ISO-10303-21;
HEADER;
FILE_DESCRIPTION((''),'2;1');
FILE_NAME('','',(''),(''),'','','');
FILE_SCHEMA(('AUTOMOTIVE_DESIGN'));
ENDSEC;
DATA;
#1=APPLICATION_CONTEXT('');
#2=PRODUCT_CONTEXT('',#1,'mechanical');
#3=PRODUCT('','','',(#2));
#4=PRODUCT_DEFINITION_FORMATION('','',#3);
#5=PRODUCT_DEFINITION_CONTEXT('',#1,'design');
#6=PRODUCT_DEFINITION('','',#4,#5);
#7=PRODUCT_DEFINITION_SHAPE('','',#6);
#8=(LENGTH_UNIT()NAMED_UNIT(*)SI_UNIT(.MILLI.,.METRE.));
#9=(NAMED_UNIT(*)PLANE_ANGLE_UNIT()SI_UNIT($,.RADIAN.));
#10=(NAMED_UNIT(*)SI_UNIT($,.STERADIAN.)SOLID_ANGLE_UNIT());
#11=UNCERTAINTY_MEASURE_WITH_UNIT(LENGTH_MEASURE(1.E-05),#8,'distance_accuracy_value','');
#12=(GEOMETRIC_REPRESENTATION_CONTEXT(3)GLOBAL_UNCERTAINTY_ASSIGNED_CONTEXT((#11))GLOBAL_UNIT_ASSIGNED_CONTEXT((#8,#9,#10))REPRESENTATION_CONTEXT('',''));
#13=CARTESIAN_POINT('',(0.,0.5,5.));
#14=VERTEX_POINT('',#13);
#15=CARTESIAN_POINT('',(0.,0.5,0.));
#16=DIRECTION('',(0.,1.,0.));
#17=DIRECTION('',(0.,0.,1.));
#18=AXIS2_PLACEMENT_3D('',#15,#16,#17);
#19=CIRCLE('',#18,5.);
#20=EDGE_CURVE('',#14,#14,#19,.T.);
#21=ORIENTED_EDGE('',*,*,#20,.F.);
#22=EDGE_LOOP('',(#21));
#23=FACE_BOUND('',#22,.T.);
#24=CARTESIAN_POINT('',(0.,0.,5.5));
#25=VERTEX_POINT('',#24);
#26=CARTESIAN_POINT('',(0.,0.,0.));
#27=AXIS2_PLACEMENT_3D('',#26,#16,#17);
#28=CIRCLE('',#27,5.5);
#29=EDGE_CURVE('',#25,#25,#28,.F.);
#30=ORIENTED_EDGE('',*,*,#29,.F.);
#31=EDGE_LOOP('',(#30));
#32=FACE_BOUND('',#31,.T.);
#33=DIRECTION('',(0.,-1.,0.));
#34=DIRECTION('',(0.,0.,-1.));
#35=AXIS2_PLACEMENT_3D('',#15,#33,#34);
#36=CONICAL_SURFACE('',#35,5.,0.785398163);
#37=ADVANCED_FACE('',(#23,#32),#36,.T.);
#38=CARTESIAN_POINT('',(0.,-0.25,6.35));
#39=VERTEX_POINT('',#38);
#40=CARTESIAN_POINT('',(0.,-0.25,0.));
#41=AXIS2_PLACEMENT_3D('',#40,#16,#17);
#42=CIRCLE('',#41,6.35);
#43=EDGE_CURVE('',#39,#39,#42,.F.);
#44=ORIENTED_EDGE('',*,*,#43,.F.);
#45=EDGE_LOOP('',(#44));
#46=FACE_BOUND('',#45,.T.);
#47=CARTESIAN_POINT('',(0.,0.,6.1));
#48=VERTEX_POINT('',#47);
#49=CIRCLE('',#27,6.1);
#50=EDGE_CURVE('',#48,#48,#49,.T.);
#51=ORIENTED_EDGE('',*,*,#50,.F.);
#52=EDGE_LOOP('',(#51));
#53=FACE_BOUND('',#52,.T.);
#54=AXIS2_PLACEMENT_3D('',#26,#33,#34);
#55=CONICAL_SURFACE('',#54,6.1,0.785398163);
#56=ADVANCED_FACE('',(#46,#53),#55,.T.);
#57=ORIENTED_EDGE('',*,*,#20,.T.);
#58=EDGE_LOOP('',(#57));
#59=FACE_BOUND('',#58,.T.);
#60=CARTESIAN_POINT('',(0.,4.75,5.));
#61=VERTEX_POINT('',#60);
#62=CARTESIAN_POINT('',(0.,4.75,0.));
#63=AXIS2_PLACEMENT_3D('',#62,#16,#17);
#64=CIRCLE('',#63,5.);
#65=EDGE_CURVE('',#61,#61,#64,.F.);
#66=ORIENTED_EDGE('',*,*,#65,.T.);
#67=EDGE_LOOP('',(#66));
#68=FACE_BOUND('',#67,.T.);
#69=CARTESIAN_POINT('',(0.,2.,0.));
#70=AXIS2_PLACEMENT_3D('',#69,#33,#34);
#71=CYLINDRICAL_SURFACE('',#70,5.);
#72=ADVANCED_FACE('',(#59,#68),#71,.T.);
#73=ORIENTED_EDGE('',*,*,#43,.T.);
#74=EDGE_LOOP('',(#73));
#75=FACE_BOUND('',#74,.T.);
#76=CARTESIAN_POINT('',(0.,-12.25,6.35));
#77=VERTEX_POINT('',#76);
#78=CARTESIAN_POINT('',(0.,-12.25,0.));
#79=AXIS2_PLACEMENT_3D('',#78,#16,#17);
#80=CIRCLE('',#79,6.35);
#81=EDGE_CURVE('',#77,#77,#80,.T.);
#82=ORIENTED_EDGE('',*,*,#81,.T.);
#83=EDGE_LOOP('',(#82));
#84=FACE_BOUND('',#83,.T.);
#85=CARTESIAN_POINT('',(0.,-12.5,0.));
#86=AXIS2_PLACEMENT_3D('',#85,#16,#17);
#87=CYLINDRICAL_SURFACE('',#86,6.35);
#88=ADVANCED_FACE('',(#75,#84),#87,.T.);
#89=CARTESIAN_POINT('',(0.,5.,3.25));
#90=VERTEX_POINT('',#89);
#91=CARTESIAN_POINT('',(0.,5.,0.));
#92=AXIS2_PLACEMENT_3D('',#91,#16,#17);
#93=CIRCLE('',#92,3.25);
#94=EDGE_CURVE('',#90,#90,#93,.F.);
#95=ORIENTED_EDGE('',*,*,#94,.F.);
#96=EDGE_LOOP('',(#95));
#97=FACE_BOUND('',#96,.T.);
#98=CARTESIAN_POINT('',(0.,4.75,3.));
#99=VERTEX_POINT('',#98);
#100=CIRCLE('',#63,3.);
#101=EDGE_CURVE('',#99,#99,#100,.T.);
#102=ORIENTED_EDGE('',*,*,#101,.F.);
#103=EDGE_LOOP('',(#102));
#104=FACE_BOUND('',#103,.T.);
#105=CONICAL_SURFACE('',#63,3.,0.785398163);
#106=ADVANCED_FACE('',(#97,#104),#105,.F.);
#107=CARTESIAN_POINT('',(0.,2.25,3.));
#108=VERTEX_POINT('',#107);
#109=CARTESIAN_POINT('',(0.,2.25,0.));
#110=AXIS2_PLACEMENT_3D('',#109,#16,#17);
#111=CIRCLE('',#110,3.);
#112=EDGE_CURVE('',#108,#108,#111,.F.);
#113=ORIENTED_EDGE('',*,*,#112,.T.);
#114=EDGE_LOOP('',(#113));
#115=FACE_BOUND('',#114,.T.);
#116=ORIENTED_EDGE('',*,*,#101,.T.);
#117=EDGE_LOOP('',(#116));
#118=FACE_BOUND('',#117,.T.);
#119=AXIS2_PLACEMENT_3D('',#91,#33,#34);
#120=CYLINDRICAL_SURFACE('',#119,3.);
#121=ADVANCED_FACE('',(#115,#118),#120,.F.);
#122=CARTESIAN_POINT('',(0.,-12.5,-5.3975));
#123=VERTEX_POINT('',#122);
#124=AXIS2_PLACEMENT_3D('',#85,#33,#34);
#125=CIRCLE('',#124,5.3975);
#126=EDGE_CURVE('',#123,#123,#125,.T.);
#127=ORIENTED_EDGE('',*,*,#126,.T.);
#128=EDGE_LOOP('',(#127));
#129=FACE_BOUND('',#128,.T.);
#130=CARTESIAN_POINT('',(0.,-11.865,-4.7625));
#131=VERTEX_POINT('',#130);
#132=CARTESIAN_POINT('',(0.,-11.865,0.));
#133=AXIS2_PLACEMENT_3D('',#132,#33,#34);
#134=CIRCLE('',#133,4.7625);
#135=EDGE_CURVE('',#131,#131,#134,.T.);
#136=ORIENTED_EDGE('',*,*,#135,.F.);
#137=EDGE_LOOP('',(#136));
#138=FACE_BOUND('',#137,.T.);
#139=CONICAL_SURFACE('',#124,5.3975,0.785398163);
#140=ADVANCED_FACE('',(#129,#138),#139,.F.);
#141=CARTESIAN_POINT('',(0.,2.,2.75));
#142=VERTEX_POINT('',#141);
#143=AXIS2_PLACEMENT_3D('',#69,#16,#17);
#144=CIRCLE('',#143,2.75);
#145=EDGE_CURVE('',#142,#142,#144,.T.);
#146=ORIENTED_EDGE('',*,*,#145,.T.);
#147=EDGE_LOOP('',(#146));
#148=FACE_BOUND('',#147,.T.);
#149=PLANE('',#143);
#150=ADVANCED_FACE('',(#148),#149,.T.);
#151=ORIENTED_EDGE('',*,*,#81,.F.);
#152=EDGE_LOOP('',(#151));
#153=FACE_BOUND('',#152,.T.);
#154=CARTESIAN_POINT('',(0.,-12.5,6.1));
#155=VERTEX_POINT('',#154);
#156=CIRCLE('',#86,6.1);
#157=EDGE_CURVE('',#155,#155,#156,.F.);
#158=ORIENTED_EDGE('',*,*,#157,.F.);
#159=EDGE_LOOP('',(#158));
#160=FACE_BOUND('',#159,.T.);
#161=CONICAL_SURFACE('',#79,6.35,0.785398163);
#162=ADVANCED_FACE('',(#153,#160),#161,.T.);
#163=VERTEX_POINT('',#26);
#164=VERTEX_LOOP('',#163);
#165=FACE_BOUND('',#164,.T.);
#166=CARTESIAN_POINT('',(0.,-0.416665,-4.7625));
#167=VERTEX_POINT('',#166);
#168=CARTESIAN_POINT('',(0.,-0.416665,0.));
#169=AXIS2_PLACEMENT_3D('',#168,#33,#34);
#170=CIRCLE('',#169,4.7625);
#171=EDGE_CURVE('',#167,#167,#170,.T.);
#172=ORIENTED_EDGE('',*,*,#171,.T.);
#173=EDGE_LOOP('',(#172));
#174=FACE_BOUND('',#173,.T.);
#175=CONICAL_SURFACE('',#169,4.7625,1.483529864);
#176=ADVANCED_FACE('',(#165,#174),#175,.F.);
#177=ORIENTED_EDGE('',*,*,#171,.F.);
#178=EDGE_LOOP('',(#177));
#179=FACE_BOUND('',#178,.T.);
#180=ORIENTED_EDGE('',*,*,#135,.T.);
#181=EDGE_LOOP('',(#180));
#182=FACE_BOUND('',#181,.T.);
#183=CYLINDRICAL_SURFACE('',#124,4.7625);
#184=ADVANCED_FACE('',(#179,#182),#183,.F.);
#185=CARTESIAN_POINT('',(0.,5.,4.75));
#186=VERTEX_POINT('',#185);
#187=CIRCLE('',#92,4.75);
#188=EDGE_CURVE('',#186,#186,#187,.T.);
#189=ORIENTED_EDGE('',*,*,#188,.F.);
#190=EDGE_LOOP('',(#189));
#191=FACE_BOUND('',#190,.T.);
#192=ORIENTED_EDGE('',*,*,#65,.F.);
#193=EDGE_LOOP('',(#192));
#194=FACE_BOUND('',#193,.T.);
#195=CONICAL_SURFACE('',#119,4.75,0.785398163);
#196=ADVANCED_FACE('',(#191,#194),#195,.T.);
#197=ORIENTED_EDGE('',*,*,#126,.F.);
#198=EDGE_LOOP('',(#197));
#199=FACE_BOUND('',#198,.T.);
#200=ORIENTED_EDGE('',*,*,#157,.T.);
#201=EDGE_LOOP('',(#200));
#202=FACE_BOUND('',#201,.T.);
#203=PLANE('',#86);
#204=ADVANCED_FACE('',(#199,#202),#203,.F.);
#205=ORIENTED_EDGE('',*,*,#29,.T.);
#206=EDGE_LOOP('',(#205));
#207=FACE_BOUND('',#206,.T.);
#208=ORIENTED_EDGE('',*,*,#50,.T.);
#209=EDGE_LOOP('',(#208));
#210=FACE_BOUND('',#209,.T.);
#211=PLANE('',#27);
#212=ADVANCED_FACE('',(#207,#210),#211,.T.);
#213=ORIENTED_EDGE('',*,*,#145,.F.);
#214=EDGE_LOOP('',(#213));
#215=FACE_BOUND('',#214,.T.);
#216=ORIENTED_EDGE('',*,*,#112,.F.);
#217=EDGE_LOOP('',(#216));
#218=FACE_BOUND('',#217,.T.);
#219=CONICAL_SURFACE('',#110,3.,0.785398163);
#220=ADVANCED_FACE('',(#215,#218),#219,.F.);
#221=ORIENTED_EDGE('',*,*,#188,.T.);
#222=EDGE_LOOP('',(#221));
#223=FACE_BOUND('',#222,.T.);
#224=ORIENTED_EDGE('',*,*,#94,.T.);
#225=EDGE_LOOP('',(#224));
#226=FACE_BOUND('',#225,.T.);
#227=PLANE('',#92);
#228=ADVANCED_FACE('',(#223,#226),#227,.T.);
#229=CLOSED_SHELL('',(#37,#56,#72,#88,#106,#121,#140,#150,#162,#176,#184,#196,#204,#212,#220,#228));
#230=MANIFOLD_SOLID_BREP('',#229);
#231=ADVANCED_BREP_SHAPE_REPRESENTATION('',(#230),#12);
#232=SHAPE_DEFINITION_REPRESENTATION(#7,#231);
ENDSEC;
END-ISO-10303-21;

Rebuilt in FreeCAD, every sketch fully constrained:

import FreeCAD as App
import Part
import Sketcher
from FreeCAD import Vector
Q = App.Units.Quantity


def edges_at(feature, points):
    """Names of the edges that pass closest to the given points."""
    edges = feature.Shape.Edges
    near = lambda p: min(range(len(edges)), key=lambda i: edges[i].distToShape(Part.Vertex(*p))[0])
    return sorted({f"Edge{near(p) + 1}" for p in points})

doc = App.newDocument("Part")
body = doc.addObject("PartDesign::Body", "Body")

# Sketch on XZ plane
sketch1 = body.newObject("Sketcher::SketchObject", "Sketch")
sketch1.AttachmentSupport = (doc.getObject("XZ_Plane"), [""])
sketch1.MapMode = "FlatFace"
sketch1.addGeometry(Part.Circle(Vector(0, 0, 0), Vector(0, 0, 1), 5), False)
sketch1.addConstraint([
    Sketcher.Constraint("Coincident", 0, 3, -1, 1),
    Sketcher.Constraint("Diameter", 0, Q("10 mm")),
])
pad1 = body.newObject("PartDesign::Pad", "Pad")
pad1.Profile = sketch1
pad1.Length = 2
pad1.Reversed = True

# Sketch on XZ plane
sketch2 = body.newObject("Sketcher::SketchObject", "Sketch001")
sketch2.AttachmentSupport = (doc.getObject("XZ_Plane"), [""])
sketch2.MapMode = "FlatFace"
sketch2.addGeometry([
    Part.Circle(Vector(0, 0, 0), Vector(0, 0, 1), 5),
    Part.Circle(Vector(0, 0, 0), Vector(0, 0, 1), 3),
], False)
sketch2.addConstraint([
    Sketcher.Constraint("Coincident", 0, 3, -1, 1),
    Sketcher.Constraint("Coincident", 1, 3, -1, 1),
    Sketcher.Constraint("Diameter", 0, Q("10 mm")),
    Sketcher.Constraint("Diameter", 1, Q("6 mm")),
])
pad2 = body.newObject("PartDesign::Pad", "Pad001")
pad2.Profile = sketch2
pad2.Length = 5
pad2.Reversed = True
doc.recompute()

chamfer = body.newObject("PartDesign::Chamfer", "Chamfer")
chamfer.Base = (pad2, edges_at(pad2, [(0, 2, -3), (0, 5, -5), (0, 5, -3)]))
chamfer.Size = 0.25

# Sketch on XZ plane
sketch3 = body.newObject("Sketcher::SketchObject", "Sketch002")
sketch3.AttachmentSupport = (doc.getObject("XZ_Plane"), [""])
sketch3.MapMode = "FlatFace"
sketch3.addGeometry(Part.Circle(Vector(0, 0, 0), Vector(0, 0, 1), 6), False)
sketch3.addConstraint([
    Sketcher.Constraint("Coincident", 0, 3, -1, 1),
    Sketcher.Constraint("Diameter", 0, Q("12.7 mm")),
])
pad3 = body.newObject("PartDesign::Pad", "Pad002")
pad3.Profile = sketch3
pad3.Length = 12.5

# Sketch on XZ plane
sketch4 = body.newObject("Sketcher::SketchObject", "Sketch003")
sketch4.AttachmentSupport = (doc.getObject("XZ_Plane"), [""])
sketch4.MapMode = "FlatFace"
sketch4.AttachmentOffset = App.Placement(Vector(0, 0, 12.5), App.Rotation())
sketch4.addGeometry(Part.Circle(Vector(0, 0, 0), Vector(0, 0, 1), 4.8), False)
sketch4.addConstraint([
    Sketcher.Constraint("Coincident", 0, 3, -1, 1),
    Sketcher.Constraint("Diameter", 0, Q("9.525 mm")),
])
doc.recompute()
hole = body.newObject("PartDesign::Hole", "Hole")
hole.Profile = sketch4
hole.ThreadType = "None"
hole.Diameter = 9.525
hole.DepthType = "Dimension"
hole.Depth = 12.083335
hole.DrillPoint = "Angled"
hole.DrillPointAngle = 170
hole.HoleCutType = "Countersink"
hole.HoleCutDiameter = 10.795
hole.HoleCutCountersinkAngle = 90
doc.recompute()

chamfer2 = body.newObject("PartDesign::Chamfer", "Chamfer001")
chamfer2.Base = (hole, edges_at(hole, [(0, -12.5, -6.35), (0, 0, -6.35)]))
chamfer2.Size = 0.25
doc.recompute()

chamfer3 = body.newObject("PartDesign::Chamfer", "Chamfer002")
chamfer3.Base = (chamfer2, edges_at(chamfer2, [(0, 0, -5)]))
chamfer3.Size = 0.5

doc.recompute()
